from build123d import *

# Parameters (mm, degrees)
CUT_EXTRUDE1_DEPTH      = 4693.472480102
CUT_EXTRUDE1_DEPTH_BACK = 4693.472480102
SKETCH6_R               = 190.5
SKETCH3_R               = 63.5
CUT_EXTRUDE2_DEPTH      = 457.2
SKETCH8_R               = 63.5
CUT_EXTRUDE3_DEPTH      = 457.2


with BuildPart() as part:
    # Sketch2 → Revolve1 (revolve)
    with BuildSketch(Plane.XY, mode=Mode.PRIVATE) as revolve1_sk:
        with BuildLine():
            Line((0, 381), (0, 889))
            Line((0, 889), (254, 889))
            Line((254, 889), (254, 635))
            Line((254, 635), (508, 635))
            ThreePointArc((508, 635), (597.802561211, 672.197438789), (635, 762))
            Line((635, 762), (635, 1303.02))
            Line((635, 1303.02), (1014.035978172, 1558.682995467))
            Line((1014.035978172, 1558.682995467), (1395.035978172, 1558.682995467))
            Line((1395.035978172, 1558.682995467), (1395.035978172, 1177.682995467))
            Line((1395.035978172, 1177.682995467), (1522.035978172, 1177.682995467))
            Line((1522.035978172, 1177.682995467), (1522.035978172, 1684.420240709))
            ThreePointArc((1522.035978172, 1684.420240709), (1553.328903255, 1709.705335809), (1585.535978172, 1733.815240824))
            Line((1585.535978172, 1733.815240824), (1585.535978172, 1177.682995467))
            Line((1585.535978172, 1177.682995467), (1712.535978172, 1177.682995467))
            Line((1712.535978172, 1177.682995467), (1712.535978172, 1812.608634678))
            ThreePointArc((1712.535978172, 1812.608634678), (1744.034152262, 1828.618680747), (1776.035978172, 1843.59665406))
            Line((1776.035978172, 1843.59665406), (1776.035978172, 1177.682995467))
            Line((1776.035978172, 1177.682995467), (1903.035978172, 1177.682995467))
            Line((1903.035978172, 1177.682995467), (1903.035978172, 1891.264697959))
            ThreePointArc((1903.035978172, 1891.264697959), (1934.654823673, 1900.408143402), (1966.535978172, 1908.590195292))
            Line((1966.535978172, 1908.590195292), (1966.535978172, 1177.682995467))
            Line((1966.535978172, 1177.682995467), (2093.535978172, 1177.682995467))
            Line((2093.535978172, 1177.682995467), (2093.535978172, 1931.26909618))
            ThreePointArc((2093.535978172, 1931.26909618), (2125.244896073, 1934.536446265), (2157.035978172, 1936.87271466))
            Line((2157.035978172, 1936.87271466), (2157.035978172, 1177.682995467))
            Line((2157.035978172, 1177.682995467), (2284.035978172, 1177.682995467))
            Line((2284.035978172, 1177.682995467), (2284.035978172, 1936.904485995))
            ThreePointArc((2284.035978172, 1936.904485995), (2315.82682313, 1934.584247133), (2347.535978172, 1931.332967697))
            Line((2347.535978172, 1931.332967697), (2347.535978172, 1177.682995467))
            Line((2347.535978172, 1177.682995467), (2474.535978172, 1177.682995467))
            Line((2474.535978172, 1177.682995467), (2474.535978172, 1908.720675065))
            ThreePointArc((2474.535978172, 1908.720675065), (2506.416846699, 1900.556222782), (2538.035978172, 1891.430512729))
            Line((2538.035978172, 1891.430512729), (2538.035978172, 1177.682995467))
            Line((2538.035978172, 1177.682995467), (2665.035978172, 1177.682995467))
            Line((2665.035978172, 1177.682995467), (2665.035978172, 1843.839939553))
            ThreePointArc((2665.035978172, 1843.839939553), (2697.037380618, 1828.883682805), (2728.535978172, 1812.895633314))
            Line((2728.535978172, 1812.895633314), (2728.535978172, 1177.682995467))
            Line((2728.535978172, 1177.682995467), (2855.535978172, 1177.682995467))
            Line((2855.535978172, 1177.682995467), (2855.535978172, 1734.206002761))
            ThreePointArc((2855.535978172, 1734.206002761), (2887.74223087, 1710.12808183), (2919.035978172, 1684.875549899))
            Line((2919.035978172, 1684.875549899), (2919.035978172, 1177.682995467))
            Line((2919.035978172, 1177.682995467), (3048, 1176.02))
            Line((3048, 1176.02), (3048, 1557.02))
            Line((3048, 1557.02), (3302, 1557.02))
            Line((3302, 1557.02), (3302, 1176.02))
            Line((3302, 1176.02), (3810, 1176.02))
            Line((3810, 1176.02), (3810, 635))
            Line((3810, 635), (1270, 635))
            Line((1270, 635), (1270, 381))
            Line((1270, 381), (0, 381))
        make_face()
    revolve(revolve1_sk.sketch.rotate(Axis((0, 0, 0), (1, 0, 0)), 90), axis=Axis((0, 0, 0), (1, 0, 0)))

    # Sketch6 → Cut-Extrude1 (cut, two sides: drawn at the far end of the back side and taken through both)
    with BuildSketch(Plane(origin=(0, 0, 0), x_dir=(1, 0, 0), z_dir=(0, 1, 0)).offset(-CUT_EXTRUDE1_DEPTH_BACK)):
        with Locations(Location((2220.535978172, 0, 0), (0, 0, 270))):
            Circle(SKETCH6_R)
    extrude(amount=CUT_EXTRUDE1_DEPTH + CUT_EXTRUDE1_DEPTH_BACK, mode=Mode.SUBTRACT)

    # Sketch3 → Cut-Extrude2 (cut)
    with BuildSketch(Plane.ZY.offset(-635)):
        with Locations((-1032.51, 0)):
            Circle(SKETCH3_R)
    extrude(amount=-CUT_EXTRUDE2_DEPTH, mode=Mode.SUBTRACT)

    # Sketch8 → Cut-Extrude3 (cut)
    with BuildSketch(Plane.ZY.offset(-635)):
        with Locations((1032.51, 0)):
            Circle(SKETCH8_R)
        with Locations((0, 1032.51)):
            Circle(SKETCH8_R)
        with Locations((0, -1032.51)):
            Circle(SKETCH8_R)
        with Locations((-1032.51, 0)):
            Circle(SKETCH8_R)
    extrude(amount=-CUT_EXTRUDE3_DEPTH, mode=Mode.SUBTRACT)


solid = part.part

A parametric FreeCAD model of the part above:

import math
import FreeCAD as App
import Part
import Sketcher
Q = App.Units.Quantity

doc = App.newDocument("Part")
body = doc.addObject("PartDesign::Body", "Body")

# Sketch on XY plane
sketch1 = body.newObject("Sketcher::SketchObject", "Sketch")
sketch1.AttachmentSupport = (doc.getObject("XY_Plane"), [""])
sketch1.MapMode = "FlatFace"
sketch1.addGeometry([
    Part.LineSegment(App.Vector(0, 889, 0), App.Vector(0, 381, 0)),  # 0
    Part.LineSegment(App.Vector(0, 381, 0), App.Vector(1270, 381, 0)),  # 1
    Part.LineSegment(App.Vector(1270, 381, 0), App.Vector(1270, 635, 0)),  # 2
    Part.LineSegment(App.Vector(1270, 635, 0), App.Vector(3810, 635, 0)),  # 3
    Part.LineSegment(App.Vector(3810, 635, 0), App.Vector(3810, 1176, 0)),  # 4
    Part.LineSegment(App.Vector(3810, 1176, 0), App.Vector(3302, 1176, 0)),  # 5
    Part.LineSegment(App.Vector(3302, 1176, 0), App.Vector(3302, 1557, 0)),  # 6
    Part.LineSegment(App.Vector(3302, 1557, 0), App.Vector(3048, 1557, 0)),  # 7
    Part.LineSegment(App.Vector(3048, 1557, 0), App.Vector(3048, 1176, 0)),  # 8
    Part.LineSegment(App.Vector(3048, 1176, 0), App.Vector(2919, 1178, 0)),  # 9
    Part.LineSegment(App.Vector(2919, 1178, 0), App.Vector(2919, 1685, 0)),  # 10
    Part.ArcOfCircle(Part.Circle(App.Vector(2221, 852, 0), App.Vector(0, 0, 1), 1087), math.radians(50.04), math.radians(54.28)),  # 11
    Part.LineSegment(App.Vector(2856, 1734, 0), App.Vector(2856, 1178, 0)),  # 12
    Part.LineSegment(App.Vector(2856, 1178, 0), App.Vector(2729, 1178, 0)),  # 13
    Part.LineSegment(App.Vector(2729, 1178, 0), App.Vector(2729, 1813, 0)),  # 14
    Part.ArcOfCircle(Part.Circle(App.Vector(2221, 852, 0), App.Vector(0, 0, 1), 1087), math.radians(62.16), math.radians(65.88)),  # 15
    Part.LineSegment(App.Vector(2665, 1844, 0), App.Vector(2665, 1178, 0)),  # 16
    Part.LineSegment(App.Vector(2665, 1178, 0), App.Vector(2538, 1178, 0)),  # 17
    Part.LineSegment(App.Vector(2538, 1178, 0), App.Vector(2538, 1891, 0)),  # 18
    Part.ArcOfCircle(Part.Circle(App.Vector(2221, 852, 0), App.Vector(0, 0, 1), 1087), math.radians(73.03), math.radians(76.5)),  # 19
    Part.LineSegment(App.Vector(2475, 1909, 0), App.Vector(2475, 1178, 0)),  # 20
    Part.LineSegment(App.Vector(2475, 1178, 0), App.Vector(2348, 1178, 0)),  # 21
    Part.LineSegment(App.Vector(2348, 1178, 0), App.Vector(2348, 1931, 0)),  # 22
    Part.ArcOfCircle(Part.Circle(App.Vector(2221, 852, 0), App.Vector(0, 0, 1), 1087), math.radians(83.31), math.radians(86.67)),  # 23
    Part.LineSegment(App.Vector(2284, 1937, 0), App.Vector(2284, 1178, 0)),  # 24
    Part.LineSegment(App.Vector(2284, 1178, 0), App.Vector(2157, 1178, 0)),  # 25
    Part.LineSegment(App.Vector(2157, 1178, 0), App.Vector(2157, 1937, 0)),  # 26
    Part.ArcOfCircle(Part.Circle(App.Vector(2221, 852, 0), App.Vector(0, 0, 1), 1087), math.radians(93.36), math.radians(96.72)),  # 27
    Part.LineSegment(App.Vector(2094, 1931, 0), App.Vector(2094, 1178, 0)),  # 28
    Part.LineSegment(App.Vector(2094, 1178, 0), App.Vector(1967, 1178, 0)),  # 29
    Part.LineSegment(App.Vector(1967, 1178, 0), App.Vector(1967, 1909, 0)),  # 30
    Part.ArcOfCircle(Part.Circle(App.Vector(2221, 852, 0), App.Vector(0, 0, 1), 1087), math.radians(103.53), math.radians(107)),  # 31
    Part.LineSegment(App.Vector(1903, 1891, 0), App.Vector(1903, 1178, 0)),  # 32
    Part.LineSegment(App.Vector(1903, 1178, 0), App.Vector(1776, 1178, 0)),  # 33
    Part.LineSegment(App.Vector(1776, 1178, 0), App.Vector(1776, 1844, 0)),  # 34
    Part.ArcOfCircle(Part.Circle(App.Vector(2221, 852, 0), App.Vector(0, 0, 1), 1087), math.radians(114.15), math.radians(117.87)),  # 35
    Part.LineSegment(App.Vector(1713, 1813, 0), App.Vector(1713, 1178, 0)),  # 36
    Part.LineSegment(App.Vector(1713, 1178, 0), App.Vector(1586, 1178, 0)),  # 37
    Part.LineSegment(App.Vector(1586, 1178, 0), App.Vector(1586, 1734, 0)),  # 38
    Part.ArcOfCircle(Part.Circle(App.Vector(2221, 852, 0), App.Vector(0, 0, 1), 1087), math.radians(125.76), math.radians(130)),  # 39
    Part.LineSegment(App.Vector(1522, 1684, 0), App.Vector(1522, 1178, 0)),  # 40
    Part.LineSegment(App.Vector(1522, 1178, 0), App.Vector(1395, 1178, 0)),  # 41
    Part.LineSegment(App.Vector(1395, 1178, 0), App.Vector(1395, 1559, 0)),  # 42
    Part.LineSegment(App.Vector(1395, 1559, 0), App.Vector(1014, 1559, 0)),  # 43
    Part.LineSegment(App.Vector(1014, 1559, 0), App.Vector(635, 1303, 0)),  # 44
    Part.LineSegment(App.Vector(635, 1303, 0), App.Vector(635, 762, 0)),  # 45
    Part.ArcOfCircle(Part.Circle(App.Vector(508, 762, 0), App.Vector(0, 0, 1), 127), math.radians(-90), math.radians(0)),  # 46
    Part.LineSegment(App.Vector(508, 635, 0), App.Vector(254, 635, 0)),  # 47
    Part.LineSegment(App.Vector(254, 635, 0), App.Vector(254, 889, 0)),  # 48
    Part.LineSegment(App.Vector(254, 889, 0), App.Vector(0, 889, 0)),  # 49
], False)
sketch1.addConstraint([
    Sketcher.Constraint("Coincident", 0, 2, 1, 1),
    Sketcher.Constraint("Coincident", 1, 2, 2, 1),
    Sketcher.Constraint("Coincident", 2, 2, 3, 1),
    Sketcher.Constraint("Coincident", 3, 2, 4, 1),
    Sketcher.Constraint("Coincident", 4, 2, 5, 1),
    Sketcher.Constraint("Coincident", 5, 2, 6, 1),
    Sketcher.Constraint("Coincident", 6, 2, 7, 1),
    Sketcher.Constraint("Coincident", 7, 2, 8, 1),
    Sketcher.Constraint("Coincident", 8, 2, 9, 1),
    Sketcher.Constraint("Coincident", 9, 2, 10, 1),
    Sketcher.Constraint("Coincident", 10, 2, 11, 1),
    Sketcher.Constraint("Coincident", 11, 2, 12, 1),
    Sketcher.Constraint("Coincident", 12, 2, 13, 1),
    Sketcher.Constraint("Coincident", 13, 2, 14, 1),
    Sketcher.Constraint("Coincident", 14, 2, 15, 1),
    Sketcher.Constraint("Coincident", 15, 2, 16, 1),
    Sketcher.Constraint("Coincident", 16, 2, 17, 1),
    Sketcher.Constraint("Coincident", 17, 2, 18, 1),
    Sketcher.Constraint("Coincident", 18, 2, 19, 1),
    Sketcher.Constraint("Coincident", 19, 2, 20, 1),
    Sketcher.Constraint("Coincident", 20, 2, 21, 1),
    Sketcher.Constraint("Coincident", 21, 2, 22, 1),
    Sketcher.Constraint("Coincident", 22, 2, 23, 1),
    Sketcher.Constraint("Coincident", 23, 2, 24, 1),
    Sketcher.Constraint("Coincident", 24, 2, 25, 1),
    Sketcher.Constraint("Coincident", 25, 2, 26, 1),
    Sketcher.Constraint("Coincident", 26, 2, 27, 1),
    Sketcher.Constraint("Coincident", 27, 2, 28, 1),
    Sketcher.Constraint("Coincident", 28, 2, 29, 1),
    Sketcher.Constraint("Coincident", 29, 2, 30, 1),
    Sketcher.Constraint("Coincident", 30, 2, 31, 1),
    Sketcher.Constraint("Coincident", 31, 2, 32, 1),
    Sketcher.Constraint("Coincident", 32, 2, 33, 1),
    Sketcher.Constraint("Coincident", 33, 2, 34, 1),
    Sketcher.Constraint("Coincident", 34, 2, 35, 1),
    Sketcher.Constraint("Coincident", 35, 2, 36, 1),
    Sketcher.Constraint("Coincident", 36, 2, 37, 1),
    Sketcher.Constraint("Coincident", 37, 2, 38, 1),
    Sketcher.Constraint("Coincident", 38, 2, 39, 1),
    Sketcher.Constraint("Coincident", 39, 2, 40, 1),
    Sketcher.Constraint("Coincident", 40, 2, 41, 1),
    Sketcher.Constraint("Coincident", 41, 2, 42, 1),
    Sketcher.Constraint("Coincident", 42, 2, 43, 1),
    Sketcher.Constraint("Coincident", 43, 2, 44, 1),
    Sketcher.Constraint("Coincident", 44, 2, 45, 1),
    Sketcher.Constraint("Tangent", 45, 2, 46, 2),
    Sketcher.Constraint("Tangent", 46, 1, 47, 1),
    Sketcher.Constraint("Coincident", 47, 2, 48, 1),
    Sketcher.Constraint("Coincident", 48, 2, 49, 1),
    Sketcher.Constraint("Coincident", 49, 2, 0, 1),
    Sketcher.Constraint("Vertical", 0),
    Sketcher.Constraint("Horizontal", 1),
    Sketcher.Constraint("Vertical", 2),
    Sketcher.Constraint("Horizontal", 3),
    Sketcher.Constraint("Vertical", 4),
    Sketcher.Constraint("Horizontal", 5),
    Sketcher.Constraint("Vertical", 6),
    Sketcher.Constraint("Horizontal", 7),
    Sketcher.Constraint("Vertical", 8),
    Sketcher.Constraint("Vertical", 10),
    Sketcher.Constraint("Vertical", 12),
    Sketcher.Constraint("Horizontal", 13),
    Sketcher.Constraint("Vertical", 14),
    Sketcher.Constraint("Vertical", 16),
    Sketcher.Constraint("Horizontal", 17),
    Sketcher.Constraint("Vertical", 18),
    Sketcher.Constraint("Vertical", 20),
    Sketcher.Constraint("Horizontal", 21),
    Sketcher.Constraint("Vertical", 22),
    Sketcher.Constraint("Vertical", 24),
    Sketcher.Constraint("Horizontal", 25),
    Sketcher.Constraint("Vertical", 26),
    Sketcher.Constraint("Vertical", 28),
    Sketcher.Constraint("Horizontal", 29),
    Sketcher.Constraint("Vertical", 30),
    Sketcher.Constraint("Vertical", 32),
    Sketcher.Constraint("Horizontal", 33),
    Sketcher.Constraint("Vertical", 34),
    Sketcher.Constraint("Vertical", 36),
    Sketcher.Constraint("Horizontal", 37),
    Sketcher.Constraint("Vertical", 38),
    Sketcher.Constraint("Vertical", 40),
    Sketcher.Constraint("Horizontal", 41),
    Sketcher.Constraint("Vertical", 42),
    Sketcher.Constraint("Horizontal", 43),
    Sketcher.Constraint("Vertical", 45),
    Sketcher.Constraint("Horizontal", 47),
    Sketcher.Constraint("Vertical", 48),
    Sketcher.Constraint("Horizontal", 49),
    Sketcher.Constraint("Coincident", 15, 3, 11, 3),
    Sketcher.Constraint("Coincident", 19, 3, 11, 3),
    Sketcher.Constraint("Coincident", 23, 3, 11, 3),
    Sketcher.Constraint("Coincident", 27, 3, 11, 3),
    Sketcher.Constraint("Coincident", 31, 3, 11, 3),
    Sketcher.Constraint("Coincident", 35, 3, 11, 3),
    Sketcher.Constraint("Coincident", 39, 3, 11, 3),
    Sketcher.Constraint("Equal", 11, 15),
    Sketcher.Constraint("Equal", 15, 19),
    Sketcher.Constraint("Equal", 19, 23),
    Sketcher.Constraint("Equal", 23, 27),
    Sketcher.Constraint("Equal", 27, 31),
    Sketcher.Constraint("Equal", 31, 35),
    Sketcher.Constraint("Equal", 35, 39),
    Sketcher.Constraint("PointOnObject", 0, 2, -2),
    Sketcher.Constraint("Horizontal", 5, 2, 8, 2),
    Sketcher.Constraint("Horizontal", 9, 2, 12, 2),
    Sketcher.Constraint("Horizontal", 13, 2, 16, 2),
    Sketcher.Constraint("Horizontal", 17, 2, 20, 2),
    Sketcher.Constraint("Horizontal", 21, 2, 24, 2),
    Sketcher.Constraint("Horizontal", 25, 2, 28, 2),
    Sketcher.Constraint("Horizontal", 29, 2, 32, 2),
    Sketcher.Constraint("Horizontal", 33, 2, 36, 2),
    Sketcher.Constraint("Horizontal", 37, 2, 40, 2),
    Sketcher.Constraint("Horizontal", 3, 2, 46, 1),
    Sketcher.Constraint("Equal", 13, 17),
    Sketcher.Constraint("Equal", 17, 21),
    Sketcher.Constraint("Equal", 21, 25),
    Sketcher.Constraint("Equal", 25, 29),
    Sketcher.Constraint("Equal", 29, 33),
    Sketcher.Constraint("Equal", 33, 37),
    Sketcher.Constraint("Equal", 37, 41),
    Sketcher.Constraint("Equal", 7, 47),
    Sketcher.Constraint("Equal", 47, 49),
    Sketcher.Constraint("Equal", 5, 0),
    Sketcher.Constraint("Equal", 49, 2),
    Sketcher.Constraint("Equal", 43, 6),
    Sketcher.Constraint("Equal", 8, 42),
    Sketcher.Constraint("Equal", 4, 45),
    Sketcher.Constraint("Equal", 2, 48),
    Sketcher.Constraint("Radius", 46, Q("5 in")),
    Sketcher.Constraint("Radius", 11, Q("42.8 in")),
    Sketcher.Constraint("DistanceX", 1, 1, 1, 2, Q("50 in")),
    Sketcher.Constraint("DistanceX", 3, 1, 3, 2, Q("100 in")),
    Sketcher.Constraint("DistanceX", 5, 2, 5, 1, Q("20 in")),
    Sketcher.Constraint("DistanceX", 13, 2, 13, 1, Q("5 in")),
    Sketcher.Constraint("DistanceX", 43, 2, 43, 1, Q("15 in")),
    Sketcher.Constraint("Distance", 44, Q("18 in")),
    Sketcher.Constraint("DistanceY", 4, 1, 4, 2, Q("21.3 in")),
    Sketcher.Constraint("DistanceY", -1, 1, 46, 3, Q("30 in")),
    Sketcher.Constraint("Angle", 44, Q("-146 deg")),
    Sketcher.Constraint("DistanceX", 16, 2, 9, 2, Q("10 in")),
    Sketcher.Constraint("DistanceX", 20, 2, 13, 2, Q("10 in")),
    Sketcher.Constraint("DistanceX", 24, 2, 17, 2, Q("10 in")),
    Sketcher.Constraint("DistanceX", 28, 2, 21, 2, Q("10 in")),
    Sketcher.Constraint("DistanceX", 32, 2, 25, 2, Q("10 in")),
    Sketcher.Constraint("DistanceX", 36, 2, 29, 2, Q("10 in")),
    Sketcher.Constraint("DistanceX", 40, 2, 33, 2, Q("10 in")),
    Sketcher.Constraint("DistanceX", 12, 2, 9, 2, Q("2.5 in")),
    Sketcher.Constraint("DistanceY", 28, 2, 28, 1, Q("753.586101 mm")),
    Sketcher.Constraint("DistanceY", 30, 1, 30, 2, Q("730.9072 mm")),
])
revolution = body.newObject("PartDesign::Revolution", "Revolution")
revolution.Profile = sketch1
revolution.ReferenceAxis = (sketch1, ["H_Axis"])
revolution.Angle = 360

# Sketch on XZ plane
sketch2 = body.newObject("Sketcher::SketchObject", "Sketch001")
sketch2.AttachmentSupport = (doc.getObject("XZ_Plane"), [""])
sketch2.MapMode = "FlatFace"
sketch2.addGeometry(Part.Circle(App.Vector(2221, 0, 0), App.Vector(0, 0, 1), 190), False)
sketch2.addConstraint([
    Sketcher.Constraint("PointOnObject", 0, 3, -1),
    Sketcher.Constraint("Diameter", 0, Q("15 in")),
    Sketcher.Constraint("DistanceX", -1, 1, 0, 3, Q("2220.535978 mm")),
])
pocket1 = body.newObject("PartDesign::Pocket", "Pocket")
pocket1.Profile = sketch2
pocket1.Type = "ThroughAll"
pocket1.Midplane = True

# Sketch on YZ plane
sketch3 = body.newObject("Sketcher::SketchObject", "Sketch002")
sketch3.AttachmentSupport = (doc.getObject("YZ_Plane"), [""])
sketch3.MapMode = "FlatFace"
sketch3.AttachmentOffset = App.Placement(App.Vector(0, 0, 25 * 25.4), App.Rotation())
sketch3.addGeometry(Part.Circle(App.Vector(0, -1033, 0), App.Vector(0, 0, 1), 64), False)
sketch3.addConstraint([
    Sketcher.Constraint("PointOnObject", 0, 3, -2),
    Sketcher.Constraint("Diameter", 0, Q("5 in")),
    Sketcher.Constraint("DistanceY", 0, 3, -1, 1, Q("40.65 in")),
])
pocket2 = body.newObject("PartDesign::Pocket", "Pocket001")
pocket2.Profile = sketch3
pocket2.Length = Q("18 in")
pocket2.Reversed = True

# Sketch on YZ plane
sketch4 = body.newObject("Sketcher::SketchObject", "Sketch003")
sketch4.AttachmentSupport = (doc.getObject("YZ_Plane"), [""])
sketch4.MapMode = "FlatFace"
sketch4.AttachmentOffset = App.Placement(App.Vector(0, 0, 25 * 25.4), App.Rotation())
sketch4.addGeometry([
    Part.Circle(App.Vector(0, 1033, 0), App.Vector(0, 0, 1), 64),
    Part.Circle(App.Vector(1033, 0, 0), App.Vector(0, 0, 1), 64),
    Part.Circle(App.Vector(-1033, 0, 0), App.Vector(0, 0, 1), 64),
    Part.Circle(App.Vector(0, -1033, 0), App.Vector(0, 0, 1), 64),
], False)
sketch4.addConstraint([
    Sketcher.Constraint("Equal", 0, 1),
    Sketcher.Constraint("Equal", 1, 2),
    Sketcher.Constraint("Equal", 2, 3),
    Sketcher.Constraint("Symmetric", 1, 3, 2, 3, -1, 1),
    Sketcher.Constraint("Symmetric", 0, 3, 3, 3, -1, 1),
    Sketcher.Constraint("PointOnObject", 0, 3, -2),
    Sketcher.Constraint("PointOnObject", 1, 3, -1),
    Sketcher.Constraint("Diameter", 0, Q("5 in")),
    Sketcher.Constraint("DistanceX", 2, 3, 1, 3, Q("81.3 in")),
    Sketcher.Constraint("DistanceY", 3, 3, 0, 3, Q("81.3 in")),
])
pocket3 = body.newObject("PartDesign::Pocket", "Pocket002")
pocket3.Profile = sketch4
pocket3.Length = Q("18 in")
pocket3.Reversed = True

doc.recompute()
